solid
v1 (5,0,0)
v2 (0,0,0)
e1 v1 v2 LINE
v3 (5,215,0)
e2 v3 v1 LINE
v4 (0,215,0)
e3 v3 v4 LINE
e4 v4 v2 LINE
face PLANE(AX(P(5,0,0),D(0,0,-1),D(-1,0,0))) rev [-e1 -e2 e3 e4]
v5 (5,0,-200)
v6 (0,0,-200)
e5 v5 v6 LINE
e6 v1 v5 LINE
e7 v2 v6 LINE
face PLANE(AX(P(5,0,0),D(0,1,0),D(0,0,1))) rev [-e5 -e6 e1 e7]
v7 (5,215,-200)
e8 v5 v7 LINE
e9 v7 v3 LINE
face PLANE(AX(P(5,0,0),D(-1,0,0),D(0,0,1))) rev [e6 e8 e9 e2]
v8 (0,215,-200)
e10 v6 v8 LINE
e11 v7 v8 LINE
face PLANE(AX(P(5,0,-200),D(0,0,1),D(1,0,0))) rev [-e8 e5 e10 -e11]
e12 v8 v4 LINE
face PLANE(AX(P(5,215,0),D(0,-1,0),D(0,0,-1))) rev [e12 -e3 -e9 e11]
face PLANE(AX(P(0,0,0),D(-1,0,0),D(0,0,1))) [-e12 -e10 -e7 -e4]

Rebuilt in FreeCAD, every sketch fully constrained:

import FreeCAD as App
import Part
import Sketcher
Q = App.Units.Quantity


def add_polygon(sketch, points):
    """Adds a closed chain of lines whose ends are joined by coincident constraints."""
    first, n = sketch.GeometryCount, len(points)
    for a, b in zip(points, points[1:] + points[:1]):
        sketch.addGeometry(Part.LineSegment(App.Vector(*a, 0), App.Vector(*b, 0)), False)
    for i in range(n):
        sketch.addConstraint(Sketcher.Constraint("Coincident", first + i, 2, first + (i + 1) % n, 1))

doc = App.newDocument("Part")
body = doc.addObject("PartDesign::Body", "Body")

# Sketch on YZ plane
sketch1 = body.newObject("Sketcher::SketchObject", "Sketch")
sketch1.AttachmentSupport = (doc.getObject("YZ_Plane"), [""])
sketch1.MapMode = "FlatFace"
add_polygon(sketch1, [(215, 0), (0, 0), (0, -200), (215, -200)])  # lines 0-3
sketch1.addConstraint(Sketcher.Constraint("Horizontal", 0))
sketch1.addConstraint(Sketcher.Constraint("Vertical", 1))
sketch1.addConstraint(Sketcher.Constraint("Horizontal", 2))
sketch1.addConstraint(Sketcher.Constraint("Vertical", 3))
sketch1.addConstraint(Sketcher.Constraint("Coincident", 0, 2, -1, 1))
sketch1.addConstraint(Sketcher.Constraint("DistanceX", 0, 2, 0, 1, Q("215 mm")))
sketch1.addConstraint(Sketcher.Constraint("DistanceY", 1, 2, 1, 1, Q("200 mm")))
pad1 = body.newObject("PartDesign::Pad", "Pad")
pad1.Profile = sketch1
pad1.Length = 5

doc.recompute()
